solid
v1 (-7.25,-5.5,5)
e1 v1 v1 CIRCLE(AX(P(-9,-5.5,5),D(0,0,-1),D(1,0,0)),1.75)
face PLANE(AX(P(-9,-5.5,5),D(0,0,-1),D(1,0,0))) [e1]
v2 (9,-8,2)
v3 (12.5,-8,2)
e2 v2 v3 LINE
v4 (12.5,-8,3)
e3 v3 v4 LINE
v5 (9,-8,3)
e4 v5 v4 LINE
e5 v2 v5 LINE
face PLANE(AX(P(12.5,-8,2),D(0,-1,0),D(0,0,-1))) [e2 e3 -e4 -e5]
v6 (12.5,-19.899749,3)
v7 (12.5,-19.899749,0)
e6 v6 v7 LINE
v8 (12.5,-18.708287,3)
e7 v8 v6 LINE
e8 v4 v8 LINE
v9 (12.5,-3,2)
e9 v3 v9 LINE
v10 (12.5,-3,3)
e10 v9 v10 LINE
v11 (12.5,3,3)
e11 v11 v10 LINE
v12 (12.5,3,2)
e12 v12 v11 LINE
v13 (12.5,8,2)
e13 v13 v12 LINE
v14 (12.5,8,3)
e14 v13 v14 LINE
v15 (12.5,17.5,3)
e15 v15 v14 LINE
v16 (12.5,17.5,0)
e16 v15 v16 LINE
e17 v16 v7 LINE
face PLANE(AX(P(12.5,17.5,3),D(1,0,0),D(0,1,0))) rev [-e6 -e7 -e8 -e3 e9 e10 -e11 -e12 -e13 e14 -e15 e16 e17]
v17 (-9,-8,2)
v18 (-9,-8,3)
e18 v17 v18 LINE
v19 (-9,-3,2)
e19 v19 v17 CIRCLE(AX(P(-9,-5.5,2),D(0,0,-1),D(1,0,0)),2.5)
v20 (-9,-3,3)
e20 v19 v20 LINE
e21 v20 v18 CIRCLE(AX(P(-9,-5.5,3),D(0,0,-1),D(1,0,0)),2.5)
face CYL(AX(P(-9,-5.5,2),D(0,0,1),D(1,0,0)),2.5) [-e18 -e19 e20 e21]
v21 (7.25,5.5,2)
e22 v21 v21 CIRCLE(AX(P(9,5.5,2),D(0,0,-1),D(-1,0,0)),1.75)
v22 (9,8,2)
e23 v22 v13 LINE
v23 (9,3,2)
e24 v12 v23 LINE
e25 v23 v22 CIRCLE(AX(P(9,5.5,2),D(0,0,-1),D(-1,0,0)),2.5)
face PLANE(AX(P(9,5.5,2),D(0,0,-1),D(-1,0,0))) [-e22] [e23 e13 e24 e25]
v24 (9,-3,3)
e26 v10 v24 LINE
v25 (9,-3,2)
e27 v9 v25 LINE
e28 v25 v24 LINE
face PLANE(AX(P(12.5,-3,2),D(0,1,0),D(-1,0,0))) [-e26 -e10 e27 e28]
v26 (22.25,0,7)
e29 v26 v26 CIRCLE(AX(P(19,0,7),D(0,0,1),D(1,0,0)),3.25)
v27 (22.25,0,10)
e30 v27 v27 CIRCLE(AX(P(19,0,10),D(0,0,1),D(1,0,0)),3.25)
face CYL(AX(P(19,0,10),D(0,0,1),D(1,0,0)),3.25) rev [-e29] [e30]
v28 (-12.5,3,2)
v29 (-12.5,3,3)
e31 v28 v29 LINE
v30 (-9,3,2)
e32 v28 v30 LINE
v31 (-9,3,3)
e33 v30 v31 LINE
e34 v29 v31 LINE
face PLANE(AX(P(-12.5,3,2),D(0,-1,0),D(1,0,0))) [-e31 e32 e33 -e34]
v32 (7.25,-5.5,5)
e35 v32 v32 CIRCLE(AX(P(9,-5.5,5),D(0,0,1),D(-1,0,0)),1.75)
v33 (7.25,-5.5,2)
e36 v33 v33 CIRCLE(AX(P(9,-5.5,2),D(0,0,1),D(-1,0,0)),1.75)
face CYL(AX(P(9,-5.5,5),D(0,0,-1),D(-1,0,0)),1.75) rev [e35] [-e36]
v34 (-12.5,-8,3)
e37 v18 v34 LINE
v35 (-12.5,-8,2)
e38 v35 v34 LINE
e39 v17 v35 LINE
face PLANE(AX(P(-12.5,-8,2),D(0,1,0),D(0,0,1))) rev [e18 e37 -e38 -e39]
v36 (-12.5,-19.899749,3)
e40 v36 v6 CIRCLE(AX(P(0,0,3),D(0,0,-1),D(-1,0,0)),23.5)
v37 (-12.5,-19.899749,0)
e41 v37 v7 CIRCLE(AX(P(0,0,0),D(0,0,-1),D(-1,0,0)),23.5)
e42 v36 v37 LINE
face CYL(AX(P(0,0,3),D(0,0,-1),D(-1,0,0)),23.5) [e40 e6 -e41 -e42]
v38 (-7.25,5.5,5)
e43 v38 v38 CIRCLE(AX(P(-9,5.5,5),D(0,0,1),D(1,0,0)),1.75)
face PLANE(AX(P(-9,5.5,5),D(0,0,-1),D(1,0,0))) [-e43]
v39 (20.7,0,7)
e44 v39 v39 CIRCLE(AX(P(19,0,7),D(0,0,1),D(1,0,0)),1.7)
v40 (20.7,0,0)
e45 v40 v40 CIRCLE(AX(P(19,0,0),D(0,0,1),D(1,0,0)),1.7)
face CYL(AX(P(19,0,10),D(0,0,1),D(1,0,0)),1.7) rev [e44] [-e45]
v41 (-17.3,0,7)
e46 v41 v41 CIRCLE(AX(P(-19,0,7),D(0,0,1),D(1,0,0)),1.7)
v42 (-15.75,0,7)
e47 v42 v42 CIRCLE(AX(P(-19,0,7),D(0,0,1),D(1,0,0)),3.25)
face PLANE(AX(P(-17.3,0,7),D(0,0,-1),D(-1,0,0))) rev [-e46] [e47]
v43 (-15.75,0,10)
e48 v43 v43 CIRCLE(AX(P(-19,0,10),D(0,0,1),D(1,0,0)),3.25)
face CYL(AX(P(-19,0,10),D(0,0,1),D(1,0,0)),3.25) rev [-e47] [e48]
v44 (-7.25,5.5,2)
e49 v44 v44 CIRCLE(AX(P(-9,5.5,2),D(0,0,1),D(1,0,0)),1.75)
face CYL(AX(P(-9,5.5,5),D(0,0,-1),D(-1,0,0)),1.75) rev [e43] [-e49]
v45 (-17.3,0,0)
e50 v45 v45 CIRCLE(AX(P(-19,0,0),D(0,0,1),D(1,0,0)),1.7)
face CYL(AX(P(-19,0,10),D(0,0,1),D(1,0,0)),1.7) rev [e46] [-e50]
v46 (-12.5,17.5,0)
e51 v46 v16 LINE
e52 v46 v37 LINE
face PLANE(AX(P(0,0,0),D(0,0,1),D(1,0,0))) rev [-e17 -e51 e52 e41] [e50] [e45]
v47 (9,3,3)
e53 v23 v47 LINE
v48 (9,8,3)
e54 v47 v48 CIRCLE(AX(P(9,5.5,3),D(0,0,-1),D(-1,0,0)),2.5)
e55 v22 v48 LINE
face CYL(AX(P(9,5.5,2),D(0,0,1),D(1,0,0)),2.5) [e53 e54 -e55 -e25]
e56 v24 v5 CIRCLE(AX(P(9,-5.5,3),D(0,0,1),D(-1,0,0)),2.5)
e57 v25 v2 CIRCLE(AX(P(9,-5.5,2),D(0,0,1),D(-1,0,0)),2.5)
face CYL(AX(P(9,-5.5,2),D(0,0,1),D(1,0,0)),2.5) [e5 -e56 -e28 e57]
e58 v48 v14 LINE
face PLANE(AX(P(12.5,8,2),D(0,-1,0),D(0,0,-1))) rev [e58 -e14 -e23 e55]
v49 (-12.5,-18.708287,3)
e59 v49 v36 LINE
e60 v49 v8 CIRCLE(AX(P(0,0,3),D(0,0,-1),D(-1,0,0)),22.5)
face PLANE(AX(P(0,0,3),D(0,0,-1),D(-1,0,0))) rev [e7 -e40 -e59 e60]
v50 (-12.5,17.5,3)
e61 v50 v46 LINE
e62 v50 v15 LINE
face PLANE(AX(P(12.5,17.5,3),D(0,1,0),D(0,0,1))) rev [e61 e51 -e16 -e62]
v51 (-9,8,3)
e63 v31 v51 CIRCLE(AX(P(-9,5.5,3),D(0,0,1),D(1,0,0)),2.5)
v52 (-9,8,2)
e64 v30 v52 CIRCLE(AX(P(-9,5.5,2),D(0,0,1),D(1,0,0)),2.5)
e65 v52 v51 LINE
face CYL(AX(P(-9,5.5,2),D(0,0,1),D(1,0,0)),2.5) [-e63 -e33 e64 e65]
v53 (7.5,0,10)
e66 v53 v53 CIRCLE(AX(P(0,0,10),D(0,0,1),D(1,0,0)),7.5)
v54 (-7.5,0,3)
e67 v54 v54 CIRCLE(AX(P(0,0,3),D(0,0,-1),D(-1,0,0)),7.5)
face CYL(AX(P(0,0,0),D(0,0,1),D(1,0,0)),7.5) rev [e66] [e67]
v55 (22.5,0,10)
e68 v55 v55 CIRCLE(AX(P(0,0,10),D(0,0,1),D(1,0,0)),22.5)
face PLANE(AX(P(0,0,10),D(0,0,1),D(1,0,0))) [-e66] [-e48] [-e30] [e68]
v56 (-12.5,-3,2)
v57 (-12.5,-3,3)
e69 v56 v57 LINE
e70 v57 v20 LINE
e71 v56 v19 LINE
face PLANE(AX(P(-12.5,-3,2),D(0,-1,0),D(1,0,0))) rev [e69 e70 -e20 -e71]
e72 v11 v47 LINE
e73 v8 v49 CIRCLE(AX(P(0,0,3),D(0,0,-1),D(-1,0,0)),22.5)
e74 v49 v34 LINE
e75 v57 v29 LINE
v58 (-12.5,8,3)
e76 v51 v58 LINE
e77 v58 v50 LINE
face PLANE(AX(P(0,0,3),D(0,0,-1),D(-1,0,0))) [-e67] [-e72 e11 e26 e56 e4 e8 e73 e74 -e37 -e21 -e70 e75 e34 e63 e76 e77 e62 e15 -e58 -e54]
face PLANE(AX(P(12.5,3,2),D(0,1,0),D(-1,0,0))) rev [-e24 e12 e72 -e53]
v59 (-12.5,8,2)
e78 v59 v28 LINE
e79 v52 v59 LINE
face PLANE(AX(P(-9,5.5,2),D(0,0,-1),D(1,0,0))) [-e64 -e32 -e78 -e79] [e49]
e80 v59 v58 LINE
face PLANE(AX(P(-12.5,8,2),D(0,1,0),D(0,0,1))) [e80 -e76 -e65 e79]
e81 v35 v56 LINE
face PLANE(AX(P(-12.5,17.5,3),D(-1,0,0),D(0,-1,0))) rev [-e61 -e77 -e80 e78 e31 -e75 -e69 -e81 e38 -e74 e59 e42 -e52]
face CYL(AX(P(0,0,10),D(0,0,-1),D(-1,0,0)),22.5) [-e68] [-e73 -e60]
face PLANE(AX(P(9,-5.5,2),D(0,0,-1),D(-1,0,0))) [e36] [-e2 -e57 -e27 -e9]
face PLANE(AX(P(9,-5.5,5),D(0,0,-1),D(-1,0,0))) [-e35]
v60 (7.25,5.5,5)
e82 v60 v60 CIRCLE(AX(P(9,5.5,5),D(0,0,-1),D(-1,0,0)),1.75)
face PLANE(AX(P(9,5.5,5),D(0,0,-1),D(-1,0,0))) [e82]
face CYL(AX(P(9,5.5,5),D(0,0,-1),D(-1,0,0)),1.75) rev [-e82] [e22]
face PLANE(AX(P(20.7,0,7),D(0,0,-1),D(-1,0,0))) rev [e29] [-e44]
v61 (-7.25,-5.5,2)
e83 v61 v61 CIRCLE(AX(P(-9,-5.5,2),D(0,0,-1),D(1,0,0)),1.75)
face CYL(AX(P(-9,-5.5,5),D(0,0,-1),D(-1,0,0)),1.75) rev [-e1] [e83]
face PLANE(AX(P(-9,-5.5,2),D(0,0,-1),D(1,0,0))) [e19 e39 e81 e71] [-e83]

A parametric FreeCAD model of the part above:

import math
import FreeCAD as App
import Part
import Sketcher
from FreeCAD import Vector
Q = App.Units.Quantity


def add_polygon(sketch, points):
    """Adds a closed chain of lines whose ends are joined by coincident constraints."""
    first, n = sketch.GeometryCount, len(points)
    for a, b in zip(points, points[1:] + points[:1]):
        sketch.addGeometry(Part.LineSegment(App.Vector(*a, 0), App.Vector(*b, 0)), False)
    for i in range(n):
        sketch.addConstraint(Sketcher.Constraint("Coincident", first + i, 2, first + (i + 1) % n, 1))

doc = App.newDocument("Part")
body = doc.addObject("PartDesign::Body", "Body")

# Sketch on XY plane
sketch1 = body.newObject("Sketcher::SketchObject", "Sketch")
sketch1.AttachmentSupport = (doc.getObject("XY_Plane"), [""])
sketch1.MapMode = "FlatFace"
sketch1.addGeometry(Part.Circle(Vector(0, 0, 0), Vector(0, 0, 1), 22), False)
sketch1.addConstraint(Sketcher.Constraint("Coincident", 0, 3, -1, 1))
sketch1.addConstraint(Sketcher.Constraint("Diameter", 0, Q("45 mm")))
pad1 = body.newObject("PartDesign::Pad", "Pad")
pad1.Profile = sketch1
pad1.Length = 10

# Sketch on XY plane
sketch2 = body.newObject("Sketcher::SketchObject", "Sketch001")
sketch2.AttachmentSupport = (doc.getObject("XY_Plane"), [""])
sketch2.MapMode = "FlatFace"
sketch2.AttachmentOffset = App.Placement(Vector(0, 0, 10), App.Rotation())
sketch2.addGeometry(Part.Circle(Vector(19, 0, 0), Vector(0, 0, 1), 1.7), False)
sketch2.addGeometry(Part.Circle(Vector(-19, 0, 0), Vector(0, 0, 1), 1.7), False)
sketch2.addConstraint(Sketcher.Constraint("Equal", 0, 1))
sketch2.addConstraint(Sketcher.Constraint("Symmetric", 0, 3, 1, 3, -1, 1))
sketch2.addConstraint(Sketcher.Constraint("PointOnObject", 0, 3, -1))
sketch2.addConstraint(Sketcher.Constraint("Diameter", 0, Q("3.4 mm")))
sketch2.addConstraint(Sketcher.Constraint("DistanceX", -1, 1, 0, 3, Q("19 mm")))
doc.recompute()
hole = body.newObject("PartDesign::Hole", "Hole")
hole.Profile = sketch2
hole.ThreadType = "None"
hole.Diameter = 3.4
hole.DepthType = "ThroughAll"
hole.HoleCutType = "Counterbore"
hole.HoleCutDiameter = 6.5
hole.HoleCutDepth = 3

# Sketch on XY plane
sketch3 = body.newObject("Sketcher::SketchObject", "Sketch002")
sketch3.AttachmentSupport = (doc.getObject("XY_Plane"), [""])
sketch3.MapMode = "FlatFace"
add_polygon(sketch3, [(12, 18), (12, -22), (-12, -22), (-12, 18)])  # lines 0-3
sketch3.addConstraint(Sketcher.Constraint("Vertical", 0))
sketch3.addConstraint(Sketcher.Constraint("Horizontal", 1))
sketch3.addConstraint(Sketcher.Constraint("Vertical", 2))
sketch3.addConstraint(Sketcher.Constraint("Horizontal", 3))
sketch3.addConstraint(Sketcher.Constraint("DistanceX", 1, 2, 1, 1, Q("25 mm")))
sketch3.addConstraint(Sketcher.Constraint("DistanceY", 0, 2, 0, 1, Q("40 mm")))
sketch3.addConstraint(Sketcher.Constraint("DistanceX", -1, 1, 0, 2, Q("12.5 mm")))
sketch3.addConstraint(Sketcher.Constraint("DistanceY", 0, 2, -1, 1, Q("22.5 mm")))
pocket1 = body.newObject("PartDesign::Pocket", "Pocket")
pocket1.Profile = sketch3
pocket1.Length = 3
pocket1.Reversed = True

# Sketch on XY plane
sketch4 = body.newObject("Sketcher::SketchObject", "Sketch003")
sketch4.AttachmentSupport = (doc.getObject("XY_Plane"), [""])
sketch4.MapMode = "FlatFace"
sketch4.AttachmentOffset = App.Placement(Vector(0, 0, 3), App.Rotation())
sketch4.addGeometry(Part.LineSegment(Vector(12.5, 3, 0), Vector(9, 3, 0)), False)
sketch4.addGeometry(Part.ArcOfCircle(Part.Circle(Vector(9, 5.5, 0), Vector(0, 0, 1), 2.5), math.radians(90), math.radians(270)), False)
sketch4.addGeometry(Part.LineSegment(Vector(9, 8, 0), Vector(12.5, 8, 0)), False)
sketch4.addGeometry(Part.LineSegment(Vector(12.5, 8, 0), Vector(12.5, 3, 0)), False)
sketch4.addConstraint(Sketcher.Constraint("Tangent", 0, 2, 1, 2))
sketch4.addConstraint(Sketcher.Constraint("Tangent", 1, 1, 2, 1))
sketch4.addConstraint(Sketcher.Constraint("Coincident", 2, 2, 3, 1))
sketch4.addConstraint(Sketcher.Constraint("Coincident", 3, 2, 0, 1))
sketch4.addConstraint(Sketcher.Constraint("Horizontal", 0))
sketch4.addConstraint(Sketcher.Constraint("Horizontal", 2))
sketch4.addConstraint(Sketcher.Constraint("Vertical", 3))
sketch4.addConstraint(Sketcher.Constraint("Radius", 1, Q("2.5 mm")))
sketch4.addConstraint(Sketcher.Constraint("DistanceX", 0, 2, 0, 1, Q("3.5 mm")))
sketch4.addConstraint(Sketcher.Constraint("DistanceX", -1, 1, 1, 3, Q("9 mm")))
sketch4.addConstraint(Sketcher.Constraint("DistanceY", -1, 1, 0, 2, Q("3 mm")))
pad2 = body.newObject("PartDesign::Pad", "Pad001")
pad2.Profile = sketch4
pad2.Length = 1
pad2.Reversed = True

# Sketch on XY plane
sketch5 = body.newObject("Sketcher::SketchObject", "Sketch004")
sketch5.AttachmentSupport = (doc.getObject("XY_Plane"), [""])
sketch5.MapMode = "FlatFace"
sketch5.AttachmentOffset = App.Placement(Vector(0, 0, 2), App.Rotation())
sketch5.addGeometry(Part.Circle(Vector(9, 5.5, 0), Vector(0, 0, 1), 1.8), False)
sketch5.addConstraint(Sketcher.Constraint("Diameter", 0, Q("3.5 mm")))
sketch5.addConstraint(Sketcher.Constraint("DistanceX", -1, 1, 0, 3, Q("9 mm")))
sketch5.addConstraint(Sketcher.Constraint("DistanceY", -1, 1, 0, 3, Q("5.5 mm")))
pocket2 = body.newObject("PartDesign::Pocket", "Pocket001")
pocket2.Profile = sketch5
pocket2.Length = 3
pocket2.Reversed = True
doc.recompute()

mirrored = body.newObject("PartDesign::Mirrored", "Mirrored")
mirrored.Originals = [pad2, pocket2]
mirrored.MirrorPlane = (doc.getObject("YZ_Plane"), [""])
body.Tip = mirrored
doc.recompute()

mirrored2 = body.newObject("PartDesign::Mirrored", "Mirrored001")
mirrored2.Originals = [pad2, pocket2]
mirrored2.MirrorPlane = (doc.getObject("XZ_Plane"), [""])
body.Tip = mirrored2

# Sketch on XY plane
sketch6 = body.newObject("Sketcher::SketchObject", "Sketch005")
sketch6.AttachmentSupport = (doc.getObject("XY_Plane"), [""])
sketch6.MapMode = "FlatFace"
sketch6.AttachmentOffset = App.Placement(Vector(0, 0, 3), App.Rotation())
sketch6.addGeometry(Part.LineSegment(Vector(-12.5, -3, 0), Vector(-9, -3, 0)), False)
sketch6.addGeometry(Part.ArcOfCircle(Part.Circle(Vector(-9, -5.5, 0), Vector(0, 0, 1), 2.5), math.radians(-90), math.radians(90)), False)
sketch6.addGeometry(Part.LineSegment(Vector(-9, -8, 0), Vector(-12.5, -8, 0)), False)
sketch6.addGeometry(Part.LineSegment(Vector(-12.5, -8, 0), Vector(-12.5, -3, 0)), False)
sketch6.addConstraint(Sketcher.Constraint("Tangent", 0, 2, 1, 2))
sketch6.addConstraint(Sketcher.Constraint("Tangent", 1, 1, 2, 1))
sketch6.addConstraint(Sketcher.Constraint("Coincident", 2, 2, 3, 1))
sketch6.addConstraint(Sketcher.Constraint("Coincident", 3, 2, 0, 1))
sketch6.addConstraint(Sketcher.Constraint("Horizontal", 0))
sketch6.addConstraint(Sketcher.Constraint("Horizontal", 2))
sketch6.addConstraint(Sketcher.Constraint("Vertical", 3))
sketch6.addConstraint(Sketcher.Constraint("Radius", 1, Q("2.5 mm")))
sketch6.addConstraint(Sketcher.Constraint("DistanceX", 0, 1, 0, 2, Q("3.5 mm")))
sketch6.addConstraint(Sketcher.Constraint("DistanceX", 1, 3, -1, 1, Q("9 mm")))
sketch6.addConstraint(Sketcher.Constraint("DistanceY", 0, 2, -1, 1, Q("3 mm")))
pad3 = body.newObject("PartDesign::Pad", "Pad002")
pad3.Profile = sketch6
pad3.Length = 1
pad3.Reversed = True

# Sketch on XY plane
sketch7 = body.newObject("Sketcher::SketchObject", "Sketch006")
sketch7.AttachmentSupport = (doc.getObject("XY_Plane"), [""])
sketch7.MapMode = "FlatFace"
sketch7.AttachmentOffset = App.Placement(Vector(0, 0, 2), App.Rotation())
sketch7.addGeometry(Part.Circle(Vector(-9, -5.5, 0), Vector(0, 0, 1), 1.8), False)
sketch7.addConstraint(Sketcher.Constraint("Diameter", 0, Q("3.5 mm")))
sketch7.addConstraint(Sketcher.Constraint("DistanceX", 0, 3, -1, 1, Q("9 mm")))
sketch7.addConstraint(Sketcher.Constraint("DistanceY", 0, 3, -1, 1, Q("5.5 mm")))
pocket3 = body.newObject("PartDesign::Pocket", "Pocket002")
pocket3.Profile = sketch7
pocket3.Length = 3
pocket3.Reversed = True

# Sketch on XY plane
sketch8 = body.newObject("Sketcher::SketchObject", "Sketch007")
sketch8.AttachmentSupport = (doc.getObject("XY_Plane"), [""])
sketch8.MapMode = "FlatFace"
sketch8.AttachmentOffset = App.Placement(Vector(0, 0, 10), App.Rotation())
sketch8.addGeometry(Part.Circle(Vector(0, 0, 0), Vector(0, 0, 1), 8), False)
sketch8.addConstraint(Sketcher.Constraint("Coincident", 0, 3, -1, 1))
sketch8.addConstraint(Sketcher.Constraint("Diameter", 0, Q("15 mm")))
pocket4 = body.newObject("PartDesign::Pocket", "Pocket003")
pocket4.Profile = sketch8
pocket4.Type = "ThroughAll"

# Sketch on XY plane
sketch9 = body.newObject("Sketcher::SketchObject", "Sketch008")
sketch9.AttachmentSupport = (doc.getObject("XY_Plane"), [""])
sketch9.MapMode = "FlatFace"
sketch9.addGeometry(Part.ArcOfCircle(Part.Circle(Vector(0, 0, 0), Vector(0, 0, 1), 22.5), math.radians(180), math.radians(236)), False)
sketch9.addGeometry(Part.LineSegment(Vector(-12.5, -18.7, 0), Vector(-12.5, -19.9, 0)), False)
sketch9.addGeometry(Part.ArcOfCircle(Part.Circle(Vector(0, 0, 0), Vector(0, 0, 1), 23.5), math.radians(180), math.radians(238)), False)
sketch9.addGeometry(Part.ArcOfCircle(Part.Circle(Vector(0, 0, 0), Vector(0, 0, 1), 23.5), math.radians(-58), math.radians(180)), False)
sketch9.addGeometry(Part.LineSegment(Vector(12.5, -19.9, 0), Vector(12.5, -18.7, 0)), False)
sketch9.addGeometry(Part.ArcOfCircle(Part.Circle(Vector(0, 0, 0), Vector(0, 0, 1), 22.5), math.radians(-56), math.radians(180)), False)
sketch9.addConstraint(Sketcher.Constraint("Coincident", 0, 2, 1, 1))
sketch9.addConstraint(Sketcher.Constraint("Coincident", 1, 2, 2, 2))
sketch9.addConstraint(Sketcher.Constraint("Tangent", 2, 1, 3, 2))
sketch9.addConstraint(Sketcher.Constraint("Coincident", 3, 1, 4, 1))
sketch9.addConstraint(Sketcher.Constraint("Coincident", 4, 2, 5, 1))
sketch9.addConstraint(Sketcher.Constraint("Tangent", 5, 2, 0, 1))
sketch9.addConstraint(Sketcher.Constraint("Vertical", 1))
sketch9.addConstraint(Sketcher.Constraint("Vertical", 4))
sketch9.addConstraint(Sketcher.Constraint("Coincident", 0, 3, -1, 1))
sketch9.addConstraint(Sketcher.Constraint("Coincident", 2, 3, -1, 1))
sketch9.addConstraint(Sketcher.Constraint("Equal", 2, 3))
sketch9.addConstraint(Sketcher.Constraint("Equal", 0, 5))
sketch9.addConstraint(Sketcher.Constraint("PointOnObject", 2, 1, -1))
sketch9.addConstraint(Sketcher.Constraint("PointOnObject", 5, 2, -1))
sketch9.addConstraint(Sketcher.Constraint("Horizontal", 1, 2, 3, 1))
sketch9.addConstraint(Sketcher.Constraint("Radius", 0, Q("22.5 mm")))
sketch9.addConstraint(Sketcher.Constraint("Radius", 2, Q("23.5 mm")))
sketch9.addConstraint(Sketcher.Constraint("DistanceX", 2, 1, 0, 2, Q("11 mm")))
pad4 = body.newObject("PartDesign::Pad", "Pad003")
pad4.Profile = sketch9
pad4.Length = 3

doc.recompute()
